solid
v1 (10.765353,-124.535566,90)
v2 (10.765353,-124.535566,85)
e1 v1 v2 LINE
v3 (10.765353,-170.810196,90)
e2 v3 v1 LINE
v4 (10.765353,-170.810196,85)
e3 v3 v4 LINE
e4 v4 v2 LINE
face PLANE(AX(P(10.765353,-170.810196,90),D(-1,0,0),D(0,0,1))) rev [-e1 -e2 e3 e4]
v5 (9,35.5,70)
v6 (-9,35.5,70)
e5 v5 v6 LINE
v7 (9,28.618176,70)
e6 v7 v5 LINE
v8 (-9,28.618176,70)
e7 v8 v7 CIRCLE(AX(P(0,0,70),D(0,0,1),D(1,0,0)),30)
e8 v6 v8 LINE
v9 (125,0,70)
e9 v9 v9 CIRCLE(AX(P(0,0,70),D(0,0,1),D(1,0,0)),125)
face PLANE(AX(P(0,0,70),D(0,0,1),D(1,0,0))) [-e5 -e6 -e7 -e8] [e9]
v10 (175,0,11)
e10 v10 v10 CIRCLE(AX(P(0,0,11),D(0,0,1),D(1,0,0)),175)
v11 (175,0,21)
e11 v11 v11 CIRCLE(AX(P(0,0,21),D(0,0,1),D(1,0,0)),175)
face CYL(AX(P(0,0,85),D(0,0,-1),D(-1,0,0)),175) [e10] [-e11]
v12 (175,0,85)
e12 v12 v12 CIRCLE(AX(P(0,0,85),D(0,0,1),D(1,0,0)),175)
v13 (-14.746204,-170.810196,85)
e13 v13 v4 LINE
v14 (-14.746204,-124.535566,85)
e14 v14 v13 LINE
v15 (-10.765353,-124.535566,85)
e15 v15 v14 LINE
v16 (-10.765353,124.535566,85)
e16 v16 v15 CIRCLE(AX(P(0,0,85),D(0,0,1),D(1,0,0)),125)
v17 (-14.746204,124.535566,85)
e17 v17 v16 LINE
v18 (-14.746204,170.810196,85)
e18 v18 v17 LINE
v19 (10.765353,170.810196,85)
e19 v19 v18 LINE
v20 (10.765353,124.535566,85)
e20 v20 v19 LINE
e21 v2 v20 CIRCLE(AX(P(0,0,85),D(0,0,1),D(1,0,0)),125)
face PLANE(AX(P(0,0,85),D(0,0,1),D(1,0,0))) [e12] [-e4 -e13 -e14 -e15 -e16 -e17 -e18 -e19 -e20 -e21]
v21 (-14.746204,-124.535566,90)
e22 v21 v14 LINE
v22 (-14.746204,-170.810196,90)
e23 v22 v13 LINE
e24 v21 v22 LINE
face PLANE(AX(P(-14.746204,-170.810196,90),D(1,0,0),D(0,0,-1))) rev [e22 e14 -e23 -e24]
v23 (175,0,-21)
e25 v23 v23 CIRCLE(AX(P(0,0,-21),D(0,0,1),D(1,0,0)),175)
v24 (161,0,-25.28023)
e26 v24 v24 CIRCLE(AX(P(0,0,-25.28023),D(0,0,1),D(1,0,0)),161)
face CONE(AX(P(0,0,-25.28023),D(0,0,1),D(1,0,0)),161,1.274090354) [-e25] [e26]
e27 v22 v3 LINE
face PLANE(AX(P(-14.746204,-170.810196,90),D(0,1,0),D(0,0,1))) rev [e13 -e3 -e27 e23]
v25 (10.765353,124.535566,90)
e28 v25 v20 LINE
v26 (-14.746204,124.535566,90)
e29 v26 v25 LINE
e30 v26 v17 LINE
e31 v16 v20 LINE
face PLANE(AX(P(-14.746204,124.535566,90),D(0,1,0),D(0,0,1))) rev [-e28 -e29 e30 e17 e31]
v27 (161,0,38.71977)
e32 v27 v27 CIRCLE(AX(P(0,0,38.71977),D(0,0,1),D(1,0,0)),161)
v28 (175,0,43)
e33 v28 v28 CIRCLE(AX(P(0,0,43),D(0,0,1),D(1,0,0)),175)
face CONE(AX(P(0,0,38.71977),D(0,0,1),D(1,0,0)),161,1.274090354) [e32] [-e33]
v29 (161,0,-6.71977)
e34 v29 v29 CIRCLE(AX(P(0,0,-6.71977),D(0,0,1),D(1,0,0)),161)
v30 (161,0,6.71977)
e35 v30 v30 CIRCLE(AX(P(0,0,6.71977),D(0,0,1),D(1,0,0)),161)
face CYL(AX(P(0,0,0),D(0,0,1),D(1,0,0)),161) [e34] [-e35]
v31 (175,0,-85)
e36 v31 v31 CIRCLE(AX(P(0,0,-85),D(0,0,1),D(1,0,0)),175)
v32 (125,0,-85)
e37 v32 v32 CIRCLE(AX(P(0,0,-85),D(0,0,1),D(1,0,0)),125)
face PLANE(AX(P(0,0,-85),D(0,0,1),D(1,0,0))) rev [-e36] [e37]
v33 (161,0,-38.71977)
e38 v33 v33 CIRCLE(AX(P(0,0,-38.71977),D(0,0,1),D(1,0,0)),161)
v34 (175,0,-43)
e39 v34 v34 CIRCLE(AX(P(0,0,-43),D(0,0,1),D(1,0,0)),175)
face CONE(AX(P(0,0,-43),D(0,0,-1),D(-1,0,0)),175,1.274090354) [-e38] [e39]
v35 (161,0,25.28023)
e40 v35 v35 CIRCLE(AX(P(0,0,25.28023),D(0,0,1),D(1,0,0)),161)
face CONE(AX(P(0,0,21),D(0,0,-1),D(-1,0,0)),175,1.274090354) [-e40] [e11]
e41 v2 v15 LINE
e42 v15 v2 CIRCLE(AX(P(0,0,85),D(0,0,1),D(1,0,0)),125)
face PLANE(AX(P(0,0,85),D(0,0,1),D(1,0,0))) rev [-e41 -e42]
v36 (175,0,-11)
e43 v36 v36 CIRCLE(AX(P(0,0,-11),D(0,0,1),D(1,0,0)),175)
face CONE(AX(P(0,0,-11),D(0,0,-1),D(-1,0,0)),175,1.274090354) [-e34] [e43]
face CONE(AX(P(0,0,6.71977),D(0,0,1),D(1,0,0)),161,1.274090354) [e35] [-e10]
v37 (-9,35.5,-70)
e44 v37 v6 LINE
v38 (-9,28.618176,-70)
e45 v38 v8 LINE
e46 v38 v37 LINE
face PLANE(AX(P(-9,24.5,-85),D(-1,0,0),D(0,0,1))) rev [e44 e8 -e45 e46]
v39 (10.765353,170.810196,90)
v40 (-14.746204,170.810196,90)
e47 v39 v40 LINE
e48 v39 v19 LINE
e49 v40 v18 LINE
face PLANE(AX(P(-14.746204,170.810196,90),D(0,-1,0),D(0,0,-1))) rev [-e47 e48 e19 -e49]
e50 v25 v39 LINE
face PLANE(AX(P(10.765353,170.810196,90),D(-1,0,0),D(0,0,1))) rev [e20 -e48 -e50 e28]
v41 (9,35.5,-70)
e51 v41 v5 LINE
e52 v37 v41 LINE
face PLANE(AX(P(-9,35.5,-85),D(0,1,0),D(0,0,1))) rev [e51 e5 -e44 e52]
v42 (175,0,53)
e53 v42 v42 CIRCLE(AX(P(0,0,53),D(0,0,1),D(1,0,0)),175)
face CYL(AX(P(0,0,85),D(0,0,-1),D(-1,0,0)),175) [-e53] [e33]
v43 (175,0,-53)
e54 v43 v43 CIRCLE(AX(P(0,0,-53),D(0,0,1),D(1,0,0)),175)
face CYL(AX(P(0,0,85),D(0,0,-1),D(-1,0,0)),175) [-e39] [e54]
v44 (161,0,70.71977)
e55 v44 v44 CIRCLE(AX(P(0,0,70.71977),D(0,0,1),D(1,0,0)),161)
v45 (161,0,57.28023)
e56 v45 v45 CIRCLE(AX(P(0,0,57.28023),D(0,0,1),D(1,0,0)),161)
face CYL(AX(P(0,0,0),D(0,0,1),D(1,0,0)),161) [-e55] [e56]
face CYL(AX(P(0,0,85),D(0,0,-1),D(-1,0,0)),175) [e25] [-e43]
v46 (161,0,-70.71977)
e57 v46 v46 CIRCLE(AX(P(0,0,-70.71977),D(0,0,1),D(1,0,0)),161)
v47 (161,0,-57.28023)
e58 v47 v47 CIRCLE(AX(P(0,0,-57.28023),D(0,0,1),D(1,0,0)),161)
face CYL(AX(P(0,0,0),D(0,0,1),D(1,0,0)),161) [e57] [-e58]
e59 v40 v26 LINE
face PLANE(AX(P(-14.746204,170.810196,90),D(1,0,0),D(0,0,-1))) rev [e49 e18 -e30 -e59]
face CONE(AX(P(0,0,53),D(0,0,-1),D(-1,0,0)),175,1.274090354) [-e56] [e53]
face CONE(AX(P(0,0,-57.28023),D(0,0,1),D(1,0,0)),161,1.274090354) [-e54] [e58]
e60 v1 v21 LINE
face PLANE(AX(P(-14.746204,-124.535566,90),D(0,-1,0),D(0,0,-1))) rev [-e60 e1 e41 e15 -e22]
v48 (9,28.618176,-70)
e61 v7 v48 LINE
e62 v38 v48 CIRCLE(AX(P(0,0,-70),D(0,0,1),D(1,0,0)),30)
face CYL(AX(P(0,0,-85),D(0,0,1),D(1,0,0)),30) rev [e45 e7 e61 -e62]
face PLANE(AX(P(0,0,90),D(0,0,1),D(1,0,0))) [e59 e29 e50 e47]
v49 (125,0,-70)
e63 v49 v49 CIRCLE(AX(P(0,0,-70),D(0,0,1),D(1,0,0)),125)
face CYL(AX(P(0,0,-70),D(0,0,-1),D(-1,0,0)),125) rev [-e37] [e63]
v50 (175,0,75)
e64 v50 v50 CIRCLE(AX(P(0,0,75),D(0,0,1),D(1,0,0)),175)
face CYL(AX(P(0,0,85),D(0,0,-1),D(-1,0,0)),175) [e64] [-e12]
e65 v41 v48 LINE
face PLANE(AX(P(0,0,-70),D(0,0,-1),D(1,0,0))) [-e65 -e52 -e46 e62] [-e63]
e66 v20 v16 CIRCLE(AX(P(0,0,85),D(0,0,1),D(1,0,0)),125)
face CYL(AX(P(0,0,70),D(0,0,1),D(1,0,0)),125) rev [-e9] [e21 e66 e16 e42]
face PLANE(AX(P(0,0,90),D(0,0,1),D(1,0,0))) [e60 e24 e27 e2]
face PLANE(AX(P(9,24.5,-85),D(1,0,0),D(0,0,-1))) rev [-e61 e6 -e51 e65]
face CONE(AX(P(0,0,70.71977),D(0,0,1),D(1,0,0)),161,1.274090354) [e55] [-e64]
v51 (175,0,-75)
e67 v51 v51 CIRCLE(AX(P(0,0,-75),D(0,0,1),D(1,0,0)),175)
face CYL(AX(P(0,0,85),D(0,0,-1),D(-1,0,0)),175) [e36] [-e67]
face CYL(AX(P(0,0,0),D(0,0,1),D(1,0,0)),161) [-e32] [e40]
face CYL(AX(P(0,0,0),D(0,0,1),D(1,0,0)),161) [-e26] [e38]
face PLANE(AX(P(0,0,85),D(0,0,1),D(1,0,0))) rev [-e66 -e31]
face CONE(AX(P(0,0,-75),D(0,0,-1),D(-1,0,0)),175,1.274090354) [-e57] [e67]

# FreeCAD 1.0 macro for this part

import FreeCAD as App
import Part
import Sketcher
from FreeCAD import Vector
Q = App.Units.Quantity

doc = App.newDocument("Part")
params = doc.addObject("Spreadsheet::Sheet", "Params")
for row, (alias, value) in enumerate([
    ("sketch1_diameter", "350 mm"),
    ("pad1_length", "170 mm"),
    ("sketch2_diameter", "60 mm"),
    ("sketch3_diameter", "250 mm"),
    ("sketch3_diameter2", "60 mm"),
    ("pocket2_length", "15 mm"),
    ("sketch4_width", "18 mm"),
    ("sketch4_height", "11 mm"),
    ("sketch5_height", "22 mm"),
    ("groove_angle", "360 deg"),
    ("pad2_length", "5 mm"),
], start=1):
    params.set(f"A{row}", alias)
    params.set(f"B{row}", "=" + value)
    params.setAlias(f"B{row}", alias)

body = doc.addObject("PartDesign::Body", "Body")

sketch1 = doc.addObject("Sketcher::SketchObject", "Sketch")
body.addObject(sketch1)
sketch1.AttachmentSupport = (doc.XY_Plane, [""])
sketch1.MapMode = "FlatFace"
sketch1.addGeometry(Part.Circle(Vector(0, 0, 0), Vector(0, 0, 1), 175), False)
sketch1.addConstraint([
    Sketcher.Constraint("Coincident", 0, 3, -1, 1),
    Sketcher.Constraint("Diameter", 0, 350.0),
])
sketch1.setExpression("Constraints[1]", "Params.sketch1_diameter")
pad1 = doc.addObject("PartDesign::Pad", "Pad")
body.addObject(pad1)
pad1.Profile = sketch1
pad1.setExpression("Length", "Params.pad1_length")
pad1.Midplane = True

sketch2 = doc.addObject("Sketcher::SketchObject", "Sketch001")
body.addObject(sketch2)
sketch2.AttachmentSupport = (doc.XY_Plane, [""])
sketch2.MapMode = "FlatFace"
sketch2.AttachmentOffset = App.Placement(Vector(0, 0, 85), App.Rotation())
sketch2.addGeometry(Part.Circle(Vector(0, 0, 0), Vector(0, 0, 1), 30), False)
sketch2.addConstraint([
    Sketcher.Constraint("Coincident", 0, 3, -1, 1),
    Sketcher.Constraint("Diameter", 0, 60.0),
])
sketch2.setExpression("Constraints[1]", "Params.sketch2_diameter")
pocket1 = doc.addObject("PartDesign::Pocket", "Pocket")
body.addObject(pocket1)
pocket1.Profile = sketch2
pocket1.Type = "ThroughAll"

sketch3 = doc.addObject("Sketcher::SketchObject", "Sketch002")
body.addObject(sketch3)
sketch3.AttachmentSupport = (doc.XY_Plane, [""])
sketch3.MapMode = "FlatFace"
sketch3.AttachmentOffset = App.Placement(Vector(0, 0, 85), App.Rotation())
sketch3.addGeometry([
    Part.Circle(Vector(0, 0, 0), Vector(0, 0, 1), 125),
    Part.Circle(Vector(0, 0, 0), Vector(0, 0, 1), 30),
], False)
sketch3.addConstraint([
    Sketcher.Constraint("Coincident", 0, 3, -1, 1),
    Sketcher.Constraint("Coincident", 1, 3, -1, 1),
    Sketcher.Constraint("Diameter", 0, 250.0),
    Sketcher.Constraint("Diameter", 1, 60.0),
])
sketch3.setExpression("Constraints[2]", "Params.sketch3_diameter")
sketch3.setExpression("Constraints[3]", "Params.sketch3_diameter2")
pocket2 = doc.addObject("PartDesign::Pocket", "Pocket001")
body.addObject(pocket2)
pocket2.Profile = sketch3
pocket2.setExpression("Length", "Params.pocket2_length")
doc.recompute()

mirrored = doc.addObject("PartDesign::Mirrored", "Mirrored")
body.addObject(mirrored)
mirrored.Originals = [pocket2]
mirrored.MirrorPlane = (doc.XY_Plane, [""])
body.Tip = mirrored

sketch4 = doc.addObject("Sketcher::SketchObject", "Sketch003")
body.addObject(sketch4)
sketch4.AttachmentSupport = (doc.XY_Plane, [""])
sketch4.MapMode = "FlatFace"
sketch4.AttachmentOffset = App.Placement(Vector(0, 0, 70), App.Rotation())
sketch4.addGeometry([
    Part.LineSegment(Vector(-9, 35.5, 0), Vector(-9, 24.5, 0)),
    Part.LineSegment(Vector(-9, 24.5, 0), Vector(9, 24.5, 0)),
    Part.LineSegment(Vector(9, 24.5, 0), Vector(9, 35.5, 0)),
    Part.LineSegment(Vector(9, 35.5, 0), Vector(-9, 35.5, 0)),
], False)
sketch4.addConstraint([
    Sketcher.Constraint("Coincident", 0, 2, 1, 1),
    Sketcher.Constraint("Coincident", 1, 2, 2, 1),
    Sketcher.Constraint("Coincident", 2, 2, 3, 1),
    Sketcher.Constraint("Coincident", 3, 2, 0, 1),
    Sketcher.Constraint("Vertical", 0),
    Sketcher.Constraint("Horizontal", 1),
    Sketcher.Constraint("Vertical", 2),
    Sketcher.Constraint("Horizontal", 3),
    Sketcher.Constraint("DistanceX", 1, 1, 1, 2, 18.0),
    Sketcher.Constraint("DistanceY", 0, 2, 0, 1, 11.0),
    Sketcher.Constraint("DistanceX", 0, 2, -1, 1, 9.0),
    Sketcher.Constraint("DistanceY", -1, 1, 0, 2, 24.5),
])
sketch4.setExpression("Constraints[8]", "Params.sketch4_width")
sketch4.setExpression("Constraints[9]", "Params.sketch4_height")
pocket3 = doc.addObject("PartDesign::Pocket", "Pocket002")
body.addObject(pocket3)
pocket3.Profile = sketch4
pocket3.Type = "ThroughAll"

sketch5 = doc.addObject("Sketcher::SketchObject", "Sketch004")
body.addObject(sketch5)
sketch5.AttachmentSupport = (doc.XZ_Plane, [""])
sketch5.MapMode = "FlatFace"
sketch5.addGeometry([
    Part.LineSegment(Vector(175, -75, 0), Vector(161, -70.71977, 0)),
    Part.LineSegment(Vector(161, -70.71977, 0), Vector(161, -57.28023, 0)),
    Part.LineSegment(Vector(161, -57.28023, 0), Vector(175, -53, 0)),
    Part.LineSegment(Vector(175, -53, 0), Vector(175, -75, 0)),
    Part.LineSegment(Vector(175, -21, 0), Vector(175, -43, 0)),
    Part.LineSegment(Vector(175, -43, 0), Vector(161, -38.71977, 0)),
    Part.LineSegment(Vector(161, -38.71977, 0), Vector(161, -25.28023, 0)),
    Part.LineSegment(Vector(161, -25.28023, 0), Vector(175, -21, 0)),
    Part.LineSegment(Vector(175, -11, 0), Vector(161, -6.71977, 0)),
    Part.LineSegment(Vector(161, -6.71977, 0), Vector(161, 6.71977, 0)),
    Part.LineSegment(Vector(161, 6.71977, 0), Vector(175, 11, 0)),
    Part.LineSegment(Vector(175, 11, 0), Vector(175, -11, 0)),
    Part.LineSegment(Vector(175, 43, 0), Vector(175, 21, 0)),
    Part.LineSegment(Vector(175, 21, 0), Vector(161, 25.28023, 0)),
    Part.LineSegment(Vector(161, 25.28023, 0), Vector(161, 38.71977, 0)),
    Part.LineSegment(Vector(161, 38.71977, 0), Vector(175, 43, 0)),
    Part.LineSegment(Vector(175, 53, 0), Vector(161, 57.28023, 0)),
    Part.LineSegment(Vector(161, 57.28023, 0), Vector(161, 70.71977, 0)),
    Part.LineSegment(Vector(161, 70.71977, 0), Vector(175, 75, 0)),
    Part.LineSegment(Vector(175, 75, 0), Vector(175, 53, 0)),
], False)
sketch5.addConstraint([
    Sketcher.Constraint("Coincident", 0, 2, 1, 1),
    Sketcher.Constraint("Coincident", 1, 2, 2, 1),
    Sketcher.Constraint("Coincident", 2, 2, 3, 1),
    Sketcher.Constraint("Coincident", 3, 2, 0, 1),
    Sketcher.Constraint("Coincident", 4, 2, 5, 1),
    Sketcher.Constraint("Coincident", 5, 2, 6, 1),
    Sketcher.Constraint("Coincident", 6, 2, 7, 1),
    Sketcher.Constraint("Coincident", 7, 2, 4, 1),
    Sketcher.Constraint("Coincident", 8, 2, 9, 1),
    Sketcher.Constraint("Coincident", 9, 2, 10, 1),
    Sketcher.Constraint("Coincident", 10, 2, 11, 1),
    Sketcher.Constraint("Coincident", 11, 2, 8, 1),
    Sketcher.Constraint("Coincident", 12, 2, 13, 1),
    Sketcher.Constraint("Coincident", 13, 2, 14, 1),
    Sketcher.Constraint("Coincident", 14, 2, 15, 1),
    Sketcher.Constraint("Coincident", 15, 2, 12, 1),
    Sketcher.Constraint("Coincident", 16, 2, 17, 1),
    Sketcher.Constraint("Coincident", 17, 2, 18, 1),
    Sketcher.Constraint("Coincident", 18, 2, 19, 1),
    Sketcher.Constraint("Coincident", 19, 2, 16, 1),
    Sketcher.Constraint("Vertical", 1),
    Sketcher.Constraint("Vertical", 3),
    Sketcher.Constraint("Vertical", 4),
    Sketcher.Constraint("Vertical", 6),
    Sketcher.Constraint("Vertical", 9),
    Sketcher.Constraint("Vertical", 11),
    Sketcher.Constraint("Vertical", 12),
    Sketcher.Constraint("Vertical", 14),
    Sketcher.Constraint("Vertical", 17),
    Sketcher.Constraint("Vertical", 19),
    Sketcher.Constraint("Symmetric", 7, 2, 12, 2, -1),
    Sketcher.Constraint("Symmetric", 6, 2, 13, 2, -1),
    Sketcher.Constraint("Symmetric", 1, 2, 16, 2, -1),
    Sketcher.Constraint("Symmetric", 3, 2, 18, 2, -1),
    Sketcher.Constraint("Parallel", 0, 5),
    Sketcher.Constraint("Parallel", 2, 7),
    Sketcher.Constraint("Parallel", 5, 8),
    Sketcher.Constraint("Parallel", 7, 10),
    Sketcher.Constraint("Parallel", 8, 13),
    Sketcher.Constraint("Parallel", 10, 15),
    Sketcher.Constraint("Parallel", 13, 16),
    Sketcher.Constraint("Parallel", 15, 18),
    Sketcher.Constraint("Vertical", 3, 2, 4, 2),
    Sketcher.Constraint("Vertical", 1, 2, 5, 2),
    Sketcher.Constraint("Vertical", 6, 2, 8, 2),
    Sketcher.Constraint("Vertical", 7, 2, 10, 2),
    Sketcher.Constraint("Equal", 3, 4),
    Sketcher.Constraint("Equal", 6, 9),
    Sketcher.Constraint("Equal", 11, 12),
    Sketcher.Constraint("DistanceY", 3, 2, 3, 1, 22.0),
    Sketcher.Constraint("Angle", 0, Q("163 deg")),
    Sketcher.Constraint("DistanceX", -1, 1, 0, 2, 161.0),
    Sketcher.Constraint("DistanceX", -1, 1, 2, 2, 175.0),
    Sketcher.Constraint("DistanceY", 2, 2, -1, 1, 53.0),
    Sketcher.Constraint("DistanceY", 4, 2, -1, 1, 43.0),
    Sketcher.Constraint("DistanceY", -1, 1, 10, 2, 11.0),
])
sketch5.setExpression("Constraints[49]", "Params.sketch5_height")
groove = doc.addObject("PartDesign::Groove", "Groove")
body.addObject(groove)
groove.Profile = sketch5
groove.ReferenceAxis = (sketch5, ["V_Axis"])
groove.setExpression("Angle", "Params.groove_angle")

sketch6 = doc.addObject("Sketcher::SketchObject", "Sketch005")
body.addObject(sketch6)
sketch6.AttachmentSupport = (doc.XY_Plane, [""])
sketch6.MapMode = "FlatFace"
sketch6.AttachmentOffset = App.Placement(Vector(0, 0, 85), App.Rotation())
sketch6.addGeometry([
    Part.LineSegment(Vector(-14.746204, 170.810196, 0), Vector(-14.746204, 124.535566, 0)),
    Part.LineSegment(Vector(-14.746204, 124.535566, 0), Vector(10.765353, 124.535566, 0)),
    Part.LineSegment(Vector(10.765353, 124.535566, 0), Vector(10.765353, 170.810196, 0)),
    Part.LineSegment(Vector(10.765353, 170.810196, 0), Vector(-14.746204, 170.810196, 0)),
    Part.LineSegment(Vector(-14.746204, -124.535566, 0), Vector(-14.746204, -170.810196, 0)),
    Part.LineSegment(Vector(-14.746204, -170.810196, 0), Vector(10.765353, -170.810196, 0)),
    Part.LineSegment(Vector(10.765353, -170.810196, 0), Vector(10.765353, -124.535566, 0)),
    Part.LineSegment(Vector(10.765353, -124.535566, 0), Vector(-14.746204, -124.535566, 0)),
], False)
sketch6.addConstraint([
    Sketcher.Constraint("Coincident", 0, 2, 1, 1),
    Sketcher.Constraint("Coincident", 1, 2, 2, 1),
    Sketcher.Constraint("Coincident", 2, 2, 3, 1),
    Sketcher.Constraint("Coincident", 3, 2, 0, 1),
    Sketcher.Constraint("Coincident", 4, 2, 5, 1),
    Sketcher.Constraint("Coincident", 5, 2, 6, 1),
    Sketcher.Constraint("Coincident", 6, 2, 7, 1),
    Sketcher.Constraint("Coincident", 7, 2, 4, 1),
    Sketcher.Constraint("Vertical", 0),
    Sketcher.Constraint("Horizontal", 1),
    Sketcher.Constraint("Vertical", 2),
    Sketcher.Constraint("Horizontal", 3),
    Sketcher.Constraint("Vertical", 4),
    Sketcher.Constraint("Horizontal", 5),
    Sketcher.Constraint("Vertical", 6),
    Sketcher.Constraint("Horizontal", 7),
    Sketcher.Constraint("Symmetric", 3, 2, 4, 2, -1),
    Sketcher.Constraint("Symmetric", 1, 2, 6, 2, -1),
    Sketcher.Constraint("DistanceY", 0, 2, 0, 1, 46.274631),
    Sketcher.Constraint("DistanceX", 1, 1, 1, 2, 25.511557),
    Sketcher.Constraint("DistanceY", 6, 2, 1, 2, 249.071132),
    Sketcher.Constraint("DistanceX", 0, 2, -1, 1, 14.746204),
])
pad2 = doc.addObject("PartDesign::Pad", "Pad001")
body.addObject(pad2)
pad2.Profile = sketch6
pad2.setExpression("Length", "Params.pad2_length")

doc.recompute()
